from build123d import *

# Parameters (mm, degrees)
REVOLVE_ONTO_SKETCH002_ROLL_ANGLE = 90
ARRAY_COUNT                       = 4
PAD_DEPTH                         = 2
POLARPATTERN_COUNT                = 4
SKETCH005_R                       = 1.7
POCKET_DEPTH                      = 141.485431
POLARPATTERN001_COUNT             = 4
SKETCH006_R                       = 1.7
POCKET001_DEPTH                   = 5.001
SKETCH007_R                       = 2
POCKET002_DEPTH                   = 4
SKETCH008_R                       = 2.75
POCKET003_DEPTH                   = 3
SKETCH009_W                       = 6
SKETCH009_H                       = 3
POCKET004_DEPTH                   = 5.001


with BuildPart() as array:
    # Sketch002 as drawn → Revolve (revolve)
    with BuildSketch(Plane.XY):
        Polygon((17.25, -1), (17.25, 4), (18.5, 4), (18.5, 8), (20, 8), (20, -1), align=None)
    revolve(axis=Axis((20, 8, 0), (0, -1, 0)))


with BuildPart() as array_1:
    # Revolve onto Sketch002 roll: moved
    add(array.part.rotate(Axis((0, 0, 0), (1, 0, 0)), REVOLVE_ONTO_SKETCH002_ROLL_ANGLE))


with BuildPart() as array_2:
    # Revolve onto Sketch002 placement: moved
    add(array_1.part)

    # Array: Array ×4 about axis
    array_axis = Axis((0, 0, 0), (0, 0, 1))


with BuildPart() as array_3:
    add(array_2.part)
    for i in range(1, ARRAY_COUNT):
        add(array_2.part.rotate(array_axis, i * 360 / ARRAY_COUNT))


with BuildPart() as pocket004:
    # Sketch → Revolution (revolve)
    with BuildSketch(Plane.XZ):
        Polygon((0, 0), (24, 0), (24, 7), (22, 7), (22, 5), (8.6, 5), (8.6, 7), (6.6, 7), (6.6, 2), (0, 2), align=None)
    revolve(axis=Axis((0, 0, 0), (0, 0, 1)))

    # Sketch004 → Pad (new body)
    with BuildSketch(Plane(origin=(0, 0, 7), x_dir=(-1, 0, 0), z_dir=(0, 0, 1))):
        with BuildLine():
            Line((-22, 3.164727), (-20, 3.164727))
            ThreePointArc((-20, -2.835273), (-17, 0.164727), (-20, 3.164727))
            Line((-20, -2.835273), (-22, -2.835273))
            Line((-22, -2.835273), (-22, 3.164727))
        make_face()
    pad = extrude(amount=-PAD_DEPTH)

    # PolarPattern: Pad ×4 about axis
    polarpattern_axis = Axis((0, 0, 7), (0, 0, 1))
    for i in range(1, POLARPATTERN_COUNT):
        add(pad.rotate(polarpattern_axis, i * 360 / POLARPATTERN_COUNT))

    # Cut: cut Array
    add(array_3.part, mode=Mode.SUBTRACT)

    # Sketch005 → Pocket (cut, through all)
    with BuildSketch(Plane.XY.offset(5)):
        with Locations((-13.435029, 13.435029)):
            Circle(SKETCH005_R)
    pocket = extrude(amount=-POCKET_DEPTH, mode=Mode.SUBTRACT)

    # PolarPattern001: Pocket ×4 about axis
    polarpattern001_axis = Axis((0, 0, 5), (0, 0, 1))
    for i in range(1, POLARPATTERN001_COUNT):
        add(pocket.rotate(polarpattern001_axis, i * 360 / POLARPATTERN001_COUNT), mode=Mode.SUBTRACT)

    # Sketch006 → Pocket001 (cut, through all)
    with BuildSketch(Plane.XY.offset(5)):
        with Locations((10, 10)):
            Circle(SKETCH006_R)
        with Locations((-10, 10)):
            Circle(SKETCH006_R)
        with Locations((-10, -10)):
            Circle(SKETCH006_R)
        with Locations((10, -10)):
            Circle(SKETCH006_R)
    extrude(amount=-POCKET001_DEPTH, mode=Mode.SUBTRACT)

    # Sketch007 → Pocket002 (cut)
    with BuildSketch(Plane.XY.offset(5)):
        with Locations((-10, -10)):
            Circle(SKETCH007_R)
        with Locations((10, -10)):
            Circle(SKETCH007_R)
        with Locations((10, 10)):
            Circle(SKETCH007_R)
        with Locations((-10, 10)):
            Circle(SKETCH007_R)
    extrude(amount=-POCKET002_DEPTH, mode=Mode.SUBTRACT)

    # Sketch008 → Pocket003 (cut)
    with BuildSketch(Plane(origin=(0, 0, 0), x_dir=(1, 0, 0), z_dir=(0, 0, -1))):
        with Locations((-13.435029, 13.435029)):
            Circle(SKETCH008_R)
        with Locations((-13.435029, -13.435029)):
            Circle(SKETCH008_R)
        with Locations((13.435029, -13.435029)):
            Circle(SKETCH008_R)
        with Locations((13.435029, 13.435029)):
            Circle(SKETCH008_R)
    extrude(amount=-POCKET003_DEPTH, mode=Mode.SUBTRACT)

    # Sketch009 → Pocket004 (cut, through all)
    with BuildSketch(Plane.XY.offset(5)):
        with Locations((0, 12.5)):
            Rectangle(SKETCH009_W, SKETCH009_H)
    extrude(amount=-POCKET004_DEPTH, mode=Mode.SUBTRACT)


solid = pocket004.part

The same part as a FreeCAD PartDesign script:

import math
import FreeCAD as App
import Part
import Sketcher
Q = App.Units.Quantity


def add_polygon(sketch, points):
    """Adds a closed chain of lines whose ends are joined by coincident constraints."""
    first, n = sketch.GeometryCount, len(points)
    for a, b in zip(points, points[1:] + points[:1]):
        sketch.addGeometry(Part.LineSegment(App.Vector(*a, 0), App.Vector(*b, 0)), False)
    for i in range(n):
        sketch.addConstraint(Sketcher.Constraint("Coincident", first + i, 2, first + (i + 1) % n, 1))

doc = App.newDocument("Part")
params = doc.addObject("Spreadsheet::Sheet", "Params")
for row, (alias, value) in enumerate([
    ("sketch1_height", "5 mm"),
    ("sketch1_height2", "9 mm"),
    ("sketch1_width", "1.5 mm"),
    ("sketch1_width2", "2.75 mm"),
    ("revolution_angle", "360 deg"),
    ("sketch2_width", "24 mm"),
    ("sketch2_width2", "2 mm"),
    ("sketch2_height", "7 mm"),
    ("sketch2_width3", "13.4 mm"),
    ("revolution2_angle", "360 deg"),
    ("sketch3_radius", "3 mm"),
    ("sketch3_width", "2 mm"),
    ("pad1_length", "2 mm"),
    ("sketch4_diameter", "3.4 mm"),
    ("sketch5_diameter", "3.4 mm"),
    ("sketch6_diameter", "4 mm"),
    ("pocket3_length", "4 mm"),
    ("sketch7_diameter", "5.5 mm"),
    ("pocket4_length", "3 mm"),
    ("sketch8_width", "6 mm"),
    ("sketch8_height", "3 mm"),
], start=1):
    params.set(f"A{row}", alias)
    params.set(f"B{row}", "=" + value)
    params.setAlias(f"B{row}", alias)

body = doc.addObject("PartDesign::Body", "Body")

# Sketch on XY plane
sketch1 = body.newObject("Sketcher::SketchObject", "Sketch")
sketch1.AttachmentSupport = (doc.getObject("XY_Plane"), [""])
sketch1.MapMode = "FlatFace"
add_polygon(sketch1, [(17.2, 4), (17.2, -1), (20, -1), (20, 8), (18.5, 8), (18.5, 4)])  # lines 0-5
sketch1.addGeometry(Part.LineSegment(App.Vector(20, 8, 0), App.Vector(20, -1, 0)), True)  # axis
sketch1.addConstraint([
    Sketcher.Constraint("Vertical", 0),
    Sketcher.Constraint("Horizontal", 1),
    Sketcher.Constraint("Vertical", 2),
    Sketcher.Constraint("Horizontal", 3),
    Sketcher.Constraint("Vertical", 4),
    Sketcher.Constraint("Horizontal", 5),
    Sketcher.Constraint("Vertical", 6),
    Sketcher.Constraint("Coincident", 6, 1, 2, 2),
    Sketcher.Constraint("Horizontal", 0, 2, 6, 2),
    Sketcher.Constraint("DistanceY", 0, 2, 0, 1, Q("5 mm")),
    Sketcher.Constraint("DistanceY", 2, 1, 2, 2, Q("9 mm")),
    Sketcher.Constraint("DistanceX", 3, 2, 3, 1, Q("1.5 mm")),
    Sketcher.Constraint("DistanceY", 0, 2, -1, 1, Q("1 mm")),
    Sketcher.Constraint("DistanceX", -1, 1, 1, 2, Q("20 mm")),
    Sketcher.Constraint("DistanceX", 1, 1, 1, 2, Q("2.75 mm")),
])
sketch1.setExpression("Constraints[15]", "Params.sketch1_height")
sketch1.setExpression("Constraints[16]", "Params.sketch1_height2")
sketch1.setExpression("Constraints[17]", "Params.sketch1_width")
sketch1.setExpression("Constraints[20]", "Params.sketch1_width2")
revolution = body.newObject("PartDesign::Revolution", "Revolution")
revolution.Profile = sketch1
revolution.ReferenceAxis = (sketch1, ["Axis0"])
revolution.setExpression("Angle", "Params.revolution_angle")
body2 = doc.addObject("PartDesign::Body", "Body001")
doc.recompute()

body.Placement = App.Placement(App.Vector(0, 0, 0), App.Rotation(App.Vector(1, 0, 0), 90))
boolean = body2.newObject("PartDesign::Boolean", "Boolean")
boolean.Type = "Fuse"
boolean.addObjects([body])
body3 = doc.addObject("PartDesign::Body", "Body002")
body3.AllowCompound = True
doc.recompute()

body3.BaseFeature = body2
doc.recompute()

body4 = doc.addObject("PartDesign::Body", "Body003")
body4.BaseFeature = body2
body4.Placement = App.Placement(App.Vector(0, 0, 0), App.Rotation(App.Vector(0, 0, 1), 90))
boolean2 = body3.newObject("PartDesign::Boolean", "Boolean001")
boolean2.Type = "Fuse"
boolean2.addObjects([body4])
doc.recompute()

body5 = doc.addObject("PartDesign::Body", "Body004")
body5.BaseFeature = body2
body5.Placement = App.Placement(App.Vector(0, 0, 0), App.Rotation(App.Vector(0, 0, 1), 180))
boolean3 = body3.newObject("PartDesign::Boolean", "Boolean002")
boolean3.Type = "Fuse"
boolean3.addObjects([body5])
doc.recompute()

body2.Placement = App.Placement(App.Vector(0, 0, 0), App.Rotation(App.Vector(0, 0, 1), 270))
boolean4 = body3.newObject("PartDesign::Boolean", "Boolean003")
boolean4.Type = "Fuse"
boolean4.addObjects([body2])
body6 = doc.addObject("PartDesign::Body", "Body005")

# Sketch on XZ plane
sketch2 = body6.newObject("Sketcher::SketchObject", "Sketch001")
sketch2.AttachmentSupport = (doc.getObject("XZ_Plane005"), [""])
sketch2.MapMode = "FlatFace"
add_polygon(sketch2, [(0, 0), (24, 0), (24, 7), (22, 7), (22, 5), (8.6, 5), (8.6, 7), (6.6, 7), (6.6, 2), (0, 2)])  # lines 0-9
sketch2.addConstraint([
    Sketcher.Constraint("Horizontal", 0),
    Sketcher.Constraint("Vertical", 1),
    Sketcher.Constraint("Horizontal", 2),
    Sketcher.Constraint("Vertical", 3),
    Sketcher.Constraint("Horizontal", 4),
    Sketcher.Constraint("Vertical", 5),
    Sketcher.Constraint("Horizontal", 6),
    Sketcher.Constraint("Vertical", 7),
    Sketcher.Constraint("Horizontal", 8),
    Sketcher.Constraint("Vertical", 9),
    Sketcher.Constraint("Coincident", 9, 2, -1, 1),
    Sketcher.Constraint("Horizontal", 2, 2, 5, 2),
    Sketcher.Constraint("Equal", 2, 6),
    Sketcher.Constraint("Equal", 6, 3),
    Sketcher.Constraint("Equal", 5, 9),
    Sketcher.Constraint("DistanceX", 0, 1, 0, 2, Q("24 mm")),
    Sketcher.Constraint("DistanceX", 2, 2, 2, 1, Q("2 mm")),
    Sketcher.Constraint("DistanceY", 1, 1, 1, 2, Q("7 mm")),
    Sketcher.Constraint("DistanceX", 4, 2, 4, 1, Q("13.4 mm")),
])
sketch2.setExpression("Constraints[25]", "Params.sketch2_width")
sketch2.setExpression("Constraints[26]", "Params.sketch2_width2")
sketch2.setExpression("Constraints[27]", "Params.sketch2_height")
sketch2.setExpression("Constraints[28]", "Params.sketch2_width3")
revolution2 = body6.newObject("PartDesign::Revolution", "Revolution001")
revolution2.Profile = sketch2
revolution2.ReferenceAxis = (sketch2, ["V_Axis"])
revolution2.setExpression("Angle", "Params.revolution2_angle")

# Sketch on XY plane
sketch3 = body6.newObject("Sketcher::SketchObject", "Sketch002")
sketch3.AttachmentSupport = (doc.getObject("XY_Plane005"), [""])
sketch3.MapMode = "FlatFace"
sketch3.AttachmentOffset = App.Placement(App.Vector(0, 0, 7), App.Rotation())
sketch3.addGeometry([
    Part.LineSegment(App.Vector(20, -3.2, 0), App.Vector(22, -3.2, 0)),
    Part.LineSegment(App.Vector(22, -3.2, 0), App.Vector(22, 2.8, 0)),
    Part.LineSegment(App.Vector(22, 2.8, 0), App.Vector(20, 2.8, 0)),
    Part.ArcOfCircle(Part.Circle(App.Vector(20, -0.2, 0), App.Vector(0, 0, 1), 3), math.radians(90), math.radians(270)),
], False)
sketch3.addConstraint([
    Sketcher.Constraint("Coincident", 0, 2, 1, 1),
    Sketcher.Constraint("Coincident", 1, 2, 2, 1),
    Sketcher.Constraint("Tangent", 2, 2, 3, 1),
    Sketcher.Constraint("Tangent", 3, 2, 0, 1),
    Sketcher.Constraint("Horizontal", 0),
    Sketcher.Constraint("Vertical", 1),
    Sketcher.Constraint("Horizontal", 2),
    Sketcher.Constraint("Radius", 3, Q("3 mm")),
    Sketcher.Constraint("DistanceX", 0, 1, 0, 2, Q("2 mm")),
    Sketcher.Constraint("DistanceX", -1, 1, 3, 3, Q("20 mm")),
    Sketcher.Constraint("DistanceY", 3, 3, -1, 1, Q("0.164727 mm")),
])
sketch3.setExpression("Constraints[7]", "Params.sketch3_radius")
sketch3.setExpression("Constraints[8]", "Params.sketch3_width")
pad1 = body6.newObject("PartDesign::Pad", "Pad")
pad1.Profile = sketch3
pad1.setExpression("Length", "Params.pad1_length")
pad1.Reversed = True
doc.recompute()

polarpattern = body6.newObject("PartDesign::PolarPattern", "PolarPattern")
polarpattern.Originals = [pad1]
polarpattern.Axis = (doc.getObject("Z_Axis005"), [""])
polarpattern.Angle = 360
polarpattern.Occurrences = 4
body6.Tip = polarpattern
doc.recompute()

boolean5 = body6.newObject("PartDesign::Boolean", "Boolean004")
boolean5.Type = "Cut"
boolean5.addObjects([body3])

# Sketch on XY plane
sketch4 = body6.newObject("Sketcher::SketchObject", "Sketch003")
sketch4.AttachmentSupport = (doc.getObject("XY_Plane005"), [""])
sketch4.MapMode = "FlatFace"
sketch4.AttachmentOffset = App.Placement(App.Vector(0, 0, 5), App.Rotation())
sketch4.addGeometry(Part.Circle(App.Vector(-13.4, 13.4, 0), App.Vector(0, 0, 1), 1.7), False)
sketch4.addConstraint([
    Sketcher.Constraint("Diameter", 0, Q("3.4 mm")),
    Sketcher.Constraint("DistanceX", 0, 3, -1, 1, Q("13.435029 mm")),
    Sketcher.Constraint("DistanceY", -1, 1, 0, 3, Q("13.435029 mm")),
])
sketch4.setExpression("Constraints[0]", "Params.sketch4_diameter")
pocket1 = body6.newObject("PartDesign::Pocket", "Pocket")
pocket1.Profile = sketch4
pocket1.Type = "ThroughAll"
doc.recompute()

polarpattern2 = body6.newObject("PartDesign::PolarPattern", "PolarPattern001")
polarpattern2.Originals = [pocket1]
polarpattern2.Axis = (doc.getObject("Z_Axis005"), [""])
polarpattern2.Angle = 360
polarpattern2.Occurrences = 4
body6.Tip = polarpattern2

# Sketch on XY plane
sketch5 = body6.newObject("Sketcher::SketchObject", "Sketch004")
sketch5.AttachmentSupport = (doc.getObject("XY_Plane005"), [""])
sketch5.MapMode = "FlatFace"
sketch5.AttachmentOffset = App.Placement(App.Vector(0, 0, 5), App.Rotation())
sketch5.addGeometry([
    Part.Circle(App.Vector(10, 10, 0), App.Vector(0, 0, 1), 1.7),
    Part.Circle(App.Vector(-10, 10, 0), App.Vector(0, 0, 1), 1.7),
    Part.Circle(App.Vector(-10, -10, 0), App.Vector(0, 0, 1), 1.7),
    Part.Circle(App.Vector(10, -10, 0), App.Vector(0, 0, 1), 1.7),
], False)
sketch5.addConstraint([
    Sketcher.Constraint("Equal", 0, 1),
    Sketcher.Constraint("Equal", 1, 2),
    Sketcher.Constraint("Equal", 2, 3),
    Sketcher.Constraint("Symmetric", 0, 3, 2, 3, -1, 1),
    Sketcher.Constraint("Symmetric", 1, 3, 3, 3, -1, 1),
    Sketcher.Constraint("Symmetric", 0, 3, 1, 3, -2),
    Sketcher.Constraint("Diameter", 0, Q("3.4 mm")),
    Sketcher.Constraint("DistanceX", -1, 1, 0, 3, Q("10 mm")),
    Sketcher.Constraint("DistanceY", -1, 1, 0, 3, Q("10 mm")),
])
sketch5.setExpression("Constraints[6]", "Params.sketch5_diameter")
pocket2 = body6.newObject("PartDesign::Pocket", "Pocket001")
pocket2.Profile = sketch5
pocket2.Type = "ThroughAll"

# Sketch on XY plane
sketch6 = body6.newObject("Sketcher::SketchObject", "Sketch005")
sketch6.AttachmentSupport = (doc.getObject("XY_Plane005"), [""])
sketch6.MapMode = "FlatFace"
sketch6.AttachmentOffset = App.Placement(App.Vector(0, 0, 5), App.Rotation())
sketch6.addGeometry([
    Part.Circle(App.Vector(-10, -10, 0), App.Vector(0, 0, 1), 2),
    Part.Circle(App.Vector(10, -10, 0), App.Vector(0, 0, 1), 2),
    Part.Circle(App.Vector(10, 10, 0), App.Vector(0, 0, 1), 2),
    Part.Circle(App.Vector(-10, 10, 0), App.Vector(0, 0, 1), 2),
], False)
sketch6.addConstraint([
    Sketcher.Constraint("Equal", 0, 1),
    Sketcher.Constraint("Equal", 1, 2),
    Sketcher.Constraint("Equal", 2, 3),
    Sketcher.Constraint("Symmetric", 0, 3, 2, 3, -1, 1),
    Sketcher.Constraint("Symmetric", 1, 3, 3, 3, -1, 1),
    Sketcher.Constraint("Symmetric", 0, 3, 1, 3, -2),
    Sketcher.Constraint("Diameter", 0, Q("4 mm")),
    Sketcher.Constraint("DistanceX", 0, 3, -1, 1, Q("10 mm")),
    Sketcher.Constraint("DistanceY", 0, 3, -1, 1, Q("10 mm")),
])
sketch6.setExpression("Constraints[6]", "Params.sketch6_diameter")
pocket3 = body6.newObject("PartDesign::Pocket", "Pocket002")
pocket3.Profile = sketch6
pocket3.setExpression("Length", "Params.pocket3_length")

# Sketch on XY plane
sketch7 = body6.newObject("Sketcher::SketchObject", "Sketch006")
sketch7.AttachmentSupport = (doc.getObject("XY_Plane005"), [""])
sketch7.MapMode = "FlatFace"
sketch7.addGeometry([
    Part.Circle(App.Vector(-13.4, -13.4, 0), App.Vector(0, 0, 1), 2.8),
    Part.Circle(App.Vector(-13.4, 13.4, 0), App.Vector(0, 0, 1), 2.8),
    Part.Circle(App.Vector(13.4, 13.4, 0), App.Vector(0, 0, 1), 2.8),
    Part.Circle(App.Vector(13.4, -13.4, 0), App.Vector(0, 0, 1), 2.8),
], False)
sketch7.addConstraint([
    Sketcher.Constraint("Equal", 0, 1),
    Sketcher.Constraint("Equal", 1, 2),
    Sketcher.Constraint("Equal", 2, 3),
    Sketcher.Constraint("Symmetric", 0, 3, 2, 3, -1, 1),
    Sketcher.Constraint("Symmetric", 1, 3, 3, 3, -1, 1),
    Sketcher.Constraint("Symmetric", 1, 3, 2, 3, -2),
    Sketcher.Constraint("Diameter", 0, Q("5.5 mm")),
    Sketcher.Constraint("DistanceX", 0, 3, -1, 1, Q("13.435029 mm")),
    Sketcher.Constraint("DistanceY", 0, 3, -1, 1, Q("13.435029 mm")),
])
sketch7.setExpression("Constraints[6]", "Params.sketch7_diameter")
pocket4 = body6.newObject("PartDesign::Pocket", "Pocket003")
pocket4.Profile = sketch7
pocket4.setExpression("Length", "Params.pocket4_length")
pocket4.Reversed = True

# Sketch on XY plane
sketch8 = body6.newObject("Sketcher::SketchObject", "Sketch007")
sketch8.AttachmentSupport = (doc.getObject("XY_Plane005"), [""])
sketch8.MapMode = "FlatFace"
sketch8.AttachmentOffset = App.Placement(App.Vector(0, 0, 5), App.Rotation())
add_polygon(sketch8, [(-3, 14), (-3, 11), (3, 11), (3, 14)])  # lines 0-3
sketch8.addConstraint([
    Sketcher.Constraint("Vertical", 0),
    Sketcher.Constraint("Horizontal", 1),
    Sketcher.Constraint("Vertical", 2),
    Sketcher.Constraint("Horizontal", 3),
    Sketcher.Constraint("DistanceX", 1, 1, 1, 2, Q("6 mm")),
    Sketcher.Constraint("DistanceY", 0, 2, 0, 1, Q("3 mm")),
    Sketcher.Constraint("DistanceX", 0, 2, -1, 1, Q("3 mm")),
    Sketcher.Constraint("DistanceY", -1, 1, 0, 2, Q("11 mm")),
])
sketch8.setExpression("Constraints[8]", "Params.sketch8_width")
sketch8.setExpression("Constraints[9]", "Params.sketch8_height")
pocket5 = body6.newObject("PartDesign::Pocket", "Pocket004")
pocket5.Profile = sketch8
pocket5.Type = "ThroughAll"

doc.recompute()
